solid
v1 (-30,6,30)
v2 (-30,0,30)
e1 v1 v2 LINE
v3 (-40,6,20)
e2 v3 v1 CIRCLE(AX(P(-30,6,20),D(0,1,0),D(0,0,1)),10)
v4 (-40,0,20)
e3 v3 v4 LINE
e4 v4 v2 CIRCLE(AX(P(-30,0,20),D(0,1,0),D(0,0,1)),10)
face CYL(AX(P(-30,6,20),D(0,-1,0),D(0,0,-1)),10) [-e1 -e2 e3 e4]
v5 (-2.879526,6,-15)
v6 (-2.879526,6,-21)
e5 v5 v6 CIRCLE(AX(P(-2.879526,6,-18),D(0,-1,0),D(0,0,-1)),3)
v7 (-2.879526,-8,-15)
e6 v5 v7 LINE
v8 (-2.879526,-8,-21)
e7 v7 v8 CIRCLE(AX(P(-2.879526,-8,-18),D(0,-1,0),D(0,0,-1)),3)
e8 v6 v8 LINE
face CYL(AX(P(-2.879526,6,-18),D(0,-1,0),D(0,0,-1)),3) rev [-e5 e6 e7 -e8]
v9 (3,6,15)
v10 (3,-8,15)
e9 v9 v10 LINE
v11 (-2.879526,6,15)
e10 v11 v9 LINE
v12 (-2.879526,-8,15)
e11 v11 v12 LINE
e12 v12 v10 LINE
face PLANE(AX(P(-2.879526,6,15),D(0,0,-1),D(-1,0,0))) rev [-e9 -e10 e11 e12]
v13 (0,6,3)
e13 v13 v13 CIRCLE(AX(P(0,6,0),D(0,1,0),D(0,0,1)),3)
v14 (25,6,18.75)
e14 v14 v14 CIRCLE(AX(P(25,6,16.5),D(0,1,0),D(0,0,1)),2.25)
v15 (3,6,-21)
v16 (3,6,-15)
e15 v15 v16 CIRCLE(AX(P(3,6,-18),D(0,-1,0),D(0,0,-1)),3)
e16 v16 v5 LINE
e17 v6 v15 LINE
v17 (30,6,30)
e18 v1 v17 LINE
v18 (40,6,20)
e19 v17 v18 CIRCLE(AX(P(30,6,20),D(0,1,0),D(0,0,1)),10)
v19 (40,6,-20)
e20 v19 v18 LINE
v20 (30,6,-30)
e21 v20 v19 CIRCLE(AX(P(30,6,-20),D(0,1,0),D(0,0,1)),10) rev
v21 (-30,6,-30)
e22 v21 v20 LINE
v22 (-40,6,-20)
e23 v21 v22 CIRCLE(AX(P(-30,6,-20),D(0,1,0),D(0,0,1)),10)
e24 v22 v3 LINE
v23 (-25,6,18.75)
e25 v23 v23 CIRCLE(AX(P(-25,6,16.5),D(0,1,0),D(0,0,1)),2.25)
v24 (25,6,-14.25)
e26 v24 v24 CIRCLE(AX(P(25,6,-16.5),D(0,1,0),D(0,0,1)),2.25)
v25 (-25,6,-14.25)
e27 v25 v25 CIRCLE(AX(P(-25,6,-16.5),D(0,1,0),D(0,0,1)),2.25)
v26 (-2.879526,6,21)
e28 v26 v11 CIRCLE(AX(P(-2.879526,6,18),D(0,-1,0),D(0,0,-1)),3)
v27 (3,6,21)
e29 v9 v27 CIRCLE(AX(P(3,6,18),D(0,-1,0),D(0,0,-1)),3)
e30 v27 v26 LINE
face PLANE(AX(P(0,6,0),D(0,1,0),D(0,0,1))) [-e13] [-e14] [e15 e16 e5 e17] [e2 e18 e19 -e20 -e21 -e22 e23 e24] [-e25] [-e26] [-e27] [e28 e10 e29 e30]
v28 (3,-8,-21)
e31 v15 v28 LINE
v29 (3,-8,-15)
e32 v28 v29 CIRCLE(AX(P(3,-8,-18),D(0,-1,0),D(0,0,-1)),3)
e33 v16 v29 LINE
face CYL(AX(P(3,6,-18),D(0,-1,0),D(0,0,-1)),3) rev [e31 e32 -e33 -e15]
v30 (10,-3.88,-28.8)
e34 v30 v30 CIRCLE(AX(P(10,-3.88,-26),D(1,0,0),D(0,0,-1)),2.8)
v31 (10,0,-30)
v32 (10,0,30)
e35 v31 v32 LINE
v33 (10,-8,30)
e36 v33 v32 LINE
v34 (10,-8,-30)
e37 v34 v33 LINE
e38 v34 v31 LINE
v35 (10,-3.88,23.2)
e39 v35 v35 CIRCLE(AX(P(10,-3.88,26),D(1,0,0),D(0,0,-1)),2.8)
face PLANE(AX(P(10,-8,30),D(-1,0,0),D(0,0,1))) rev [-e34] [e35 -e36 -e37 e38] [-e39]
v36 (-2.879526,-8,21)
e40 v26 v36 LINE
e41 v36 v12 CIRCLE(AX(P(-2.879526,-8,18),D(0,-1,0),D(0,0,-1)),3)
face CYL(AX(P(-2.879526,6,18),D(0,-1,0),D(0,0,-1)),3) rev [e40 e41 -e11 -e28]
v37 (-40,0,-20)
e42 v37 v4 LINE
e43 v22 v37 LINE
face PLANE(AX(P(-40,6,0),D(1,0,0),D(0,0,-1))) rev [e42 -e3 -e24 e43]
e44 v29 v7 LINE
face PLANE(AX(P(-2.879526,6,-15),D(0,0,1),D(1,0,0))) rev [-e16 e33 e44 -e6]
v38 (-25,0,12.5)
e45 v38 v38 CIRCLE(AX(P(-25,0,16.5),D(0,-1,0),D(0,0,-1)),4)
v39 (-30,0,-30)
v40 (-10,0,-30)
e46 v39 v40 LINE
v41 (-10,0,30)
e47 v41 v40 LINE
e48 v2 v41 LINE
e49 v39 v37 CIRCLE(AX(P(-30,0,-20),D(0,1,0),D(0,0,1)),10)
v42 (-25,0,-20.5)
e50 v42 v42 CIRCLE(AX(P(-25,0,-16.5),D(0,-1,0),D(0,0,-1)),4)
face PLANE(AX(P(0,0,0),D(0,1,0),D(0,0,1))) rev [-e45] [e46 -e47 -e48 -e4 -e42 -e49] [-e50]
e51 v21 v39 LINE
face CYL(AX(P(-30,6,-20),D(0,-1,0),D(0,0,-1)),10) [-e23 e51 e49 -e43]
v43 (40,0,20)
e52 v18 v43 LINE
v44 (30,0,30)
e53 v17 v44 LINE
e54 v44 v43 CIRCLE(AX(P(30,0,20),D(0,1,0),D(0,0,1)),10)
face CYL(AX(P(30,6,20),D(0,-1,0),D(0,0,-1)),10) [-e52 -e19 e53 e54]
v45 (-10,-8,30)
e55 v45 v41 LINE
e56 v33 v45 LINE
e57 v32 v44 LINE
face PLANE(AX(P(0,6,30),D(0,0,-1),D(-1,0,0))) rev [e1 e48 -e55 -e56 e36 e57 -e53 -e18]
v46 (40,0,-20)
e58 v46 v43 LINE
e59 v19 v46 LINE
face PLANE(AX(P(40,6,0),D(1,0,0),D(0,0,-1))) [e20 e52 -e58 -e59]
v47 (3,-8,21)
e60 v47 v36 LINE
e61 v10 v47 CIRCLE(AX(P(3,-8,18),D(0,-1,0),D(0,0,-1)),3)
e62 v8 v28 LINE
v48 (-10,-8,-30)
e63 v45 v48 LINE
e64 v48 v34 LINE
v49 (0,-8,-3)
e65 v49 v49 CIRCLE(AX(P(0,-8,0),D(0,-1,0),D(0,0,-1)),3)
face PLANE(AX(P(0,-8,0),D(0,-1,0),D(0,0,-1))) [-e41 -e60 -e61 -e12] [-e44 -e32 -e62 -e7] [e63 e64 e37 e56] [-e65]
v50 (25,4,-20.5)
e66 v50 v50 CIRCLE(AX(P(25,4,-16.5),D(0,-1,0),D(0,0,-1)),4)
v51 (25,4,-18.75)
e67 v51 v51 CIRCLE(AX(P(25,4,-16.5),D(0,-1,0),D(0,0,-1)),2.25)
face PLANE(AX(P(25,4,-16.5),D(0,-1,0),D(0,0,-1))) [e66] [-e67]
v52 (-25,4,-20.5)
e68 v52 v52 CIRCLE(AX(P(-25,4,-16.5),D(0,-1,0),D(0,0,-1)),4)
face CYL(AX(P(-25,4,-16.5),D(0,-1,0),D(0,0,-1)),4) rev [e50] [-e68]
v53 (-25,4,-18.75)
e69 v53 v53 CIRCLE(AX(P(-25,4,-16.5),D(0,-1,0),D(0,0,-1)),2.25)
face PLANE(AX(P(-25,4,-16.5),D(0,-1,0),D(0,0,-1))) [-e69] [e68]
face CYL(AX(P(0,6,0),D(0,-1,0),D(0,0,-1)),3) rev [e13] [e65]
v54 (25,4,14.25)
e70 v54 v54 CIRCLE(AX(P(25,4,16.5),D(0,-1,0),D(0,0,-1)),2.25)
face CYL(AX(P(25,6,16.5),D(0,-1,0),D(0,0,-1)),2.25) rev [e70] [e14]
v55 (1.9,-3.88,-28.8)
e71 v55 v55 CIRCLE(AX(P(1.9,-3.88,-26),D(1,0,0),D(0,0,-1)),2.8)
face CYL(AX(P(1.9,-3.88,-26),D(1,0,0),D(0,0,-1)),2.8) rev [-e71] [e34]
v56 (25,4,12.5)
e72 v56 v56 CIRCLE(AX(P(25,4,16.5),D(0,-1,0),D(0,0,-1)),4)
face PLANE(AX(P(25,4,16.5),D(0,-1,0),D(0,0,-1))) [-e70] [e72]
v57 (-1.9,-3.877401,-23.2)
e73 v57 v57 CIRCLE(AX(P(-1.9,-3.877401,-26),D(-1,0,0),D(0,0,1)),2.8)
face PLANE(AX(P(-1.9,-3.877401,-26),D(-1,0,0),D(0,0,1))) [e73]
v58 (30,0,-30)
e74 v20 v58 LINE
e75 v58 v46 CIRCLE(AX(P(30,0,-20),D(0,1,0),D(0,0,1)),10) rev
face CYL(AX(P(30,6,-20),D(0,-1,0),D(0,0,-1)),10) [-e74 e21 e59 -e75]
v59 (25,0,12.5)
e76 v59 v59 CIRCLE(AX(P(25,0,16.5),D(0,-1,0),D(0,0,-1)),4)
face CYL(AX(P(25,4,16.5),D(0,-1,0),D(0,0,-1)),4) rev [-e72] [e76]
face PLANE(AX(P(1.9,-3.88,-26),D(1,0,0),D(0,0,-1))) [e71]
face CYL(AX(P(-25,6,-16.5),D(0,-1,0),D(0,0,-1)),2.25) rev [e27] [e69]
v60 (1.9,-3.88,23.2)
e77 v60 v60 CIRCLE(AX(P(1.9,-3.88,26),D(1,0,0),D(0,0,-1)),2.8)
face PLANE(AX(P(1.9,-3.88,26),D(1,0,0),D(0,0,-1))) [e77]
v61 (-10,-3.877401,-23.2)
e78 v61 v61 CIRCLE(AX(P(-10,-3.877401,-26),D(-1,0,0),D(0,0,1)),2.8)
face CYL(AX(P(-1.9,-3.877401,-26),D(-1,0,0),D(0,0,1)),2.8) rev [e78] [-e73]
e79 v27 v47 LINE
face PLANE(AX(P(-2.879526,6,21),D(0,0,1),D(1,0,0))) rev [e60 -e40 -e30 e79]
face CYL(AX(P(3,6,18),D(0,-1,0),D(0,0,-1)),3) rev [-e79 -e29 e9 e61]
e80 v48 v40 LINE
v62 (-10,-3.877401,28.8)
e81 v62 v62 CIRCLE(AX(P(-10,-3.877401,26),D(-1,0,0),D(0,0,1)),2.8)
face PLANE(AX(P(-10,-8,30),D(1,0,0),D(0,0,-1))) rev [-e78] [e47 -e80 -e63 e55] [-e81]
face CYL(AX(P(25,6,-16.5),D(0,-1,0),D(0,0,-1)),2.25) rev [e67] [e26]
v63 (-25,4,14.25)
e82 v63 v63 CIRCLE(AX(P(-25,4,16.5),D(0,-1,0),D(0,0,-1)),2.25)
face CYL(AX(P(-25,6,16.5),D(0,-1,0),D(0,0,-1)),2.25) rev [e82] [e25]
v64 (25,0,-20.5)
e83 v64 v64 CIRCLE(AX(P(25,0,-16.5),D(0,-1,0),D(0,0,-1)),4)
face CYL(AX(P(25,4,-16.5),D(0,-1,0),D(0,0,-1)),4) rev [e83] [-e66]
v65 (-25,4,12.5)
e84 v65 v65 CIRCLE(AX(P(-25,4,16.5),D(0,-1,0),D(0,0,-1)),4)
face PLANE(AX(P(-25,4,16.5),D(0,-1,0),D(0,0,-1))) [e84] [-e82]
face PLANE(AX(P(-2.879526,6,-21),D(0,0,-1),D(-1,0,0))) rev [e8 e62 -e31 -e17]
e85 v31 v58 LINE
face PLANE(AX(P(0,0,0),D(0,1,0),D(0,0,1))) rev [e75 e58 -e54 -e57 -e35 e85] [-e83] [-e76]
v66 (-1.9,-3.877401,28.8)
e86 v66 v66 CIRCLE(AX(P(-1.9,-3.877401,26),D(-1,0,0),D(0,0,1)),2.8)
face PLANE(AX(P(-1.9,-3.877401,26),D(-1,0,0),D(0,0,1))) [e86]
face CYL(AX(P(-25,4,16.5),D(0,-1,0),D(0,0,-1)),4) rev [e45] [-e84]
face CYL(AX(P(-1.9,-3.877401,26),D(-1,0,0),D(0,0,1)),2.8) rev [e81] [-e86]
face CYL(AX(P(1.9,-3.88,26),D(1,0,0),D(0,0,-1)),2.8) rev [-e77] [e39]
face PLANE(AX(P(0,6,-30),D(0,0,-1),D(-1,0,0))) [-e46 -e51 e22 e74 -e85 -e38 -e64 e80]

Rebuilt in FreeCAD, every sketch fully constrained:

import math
import FreeCAD as App
import Part
import Sketcher

V = App.Vector


def add_polygon(sketch, points):
    """Adds a closed chain of lines whose ends are joined by coincident constraints."""
    first, n = sketch.GeometryCount, len(points)
    for a, b in zip(points, points[1:] + points[:1]):
        sketch.addGeometry(Part.LineSegment(App.Vector(*a, 0), App.Vector(*b, 0)), False)
    for i in range(n):
        sketch.addConstraint(Sketcher.Constraint("Coincident", first + i, 2, first + (i + 1) % n, 1))

doc = App.newDocument("Part")
body = doc.addObject("PartDesign::Body", "Body")

sketch1 = body.newObject("Sketcher::SketchObject", "Sketch")
sketch1.AttachmentSupport = (doc.getObject("XZ_Plane"), [""])
sketch1.MapMode = "FlatFace"
sketch1.addGeometry([
    Part.ArcOfCircle(Part.Circle(V(-30, -20, 0), V(0, 0, 1), 10), math.radians(180), math.radians(270)),
    Part.LineSegment(V(-40, -20, 0), V(-40, 20, 0)),
    Part.ArcOfCircle(Part.Circle(V(-30, 20, 0), V(0, 0, 1), 10), math.radians(90), math.radians(180)),
    Part.LineSegment(V(-30, 30, 0), V(30, 30, 0)),
    Part.ArcOfCircle(Part.Circle(V(30, 20, 0), V(0, 0, 1), 10), math.radians(0), math.radians(90)),
    Part.LineSegment(V(40, 20, 0), V(40, -20, 0)),
    Part.ArcOfCircle(Part.Circle(V(30, -20, 0), V(0, 0, 1), 10), math.radians(-90), math.radians(0)),
    Part.LineSegment(V(30, -30, 0), V(-30, -30, 0)),
    Part.Circle(V(-25, 16.5, 0), V(0, 0, 1), 2.2),
    Part.Circle(V(25, 16.5, 0), V(0, 0, 1), 2.2),
    Part.Circle(V(-25, -16.5, 0), V(0, 0, 1), 2.2),
    Part.Circle(V(0, 0, 0), V(0, 0, 1), 3),
    Part.Circle(V(25, -16.5, 0), V(0, 0, 1), 2.2),
], False)
sketch1.addConstraint([
    Sketcher.Constraint("Tangent", 0, 1, 1, 1),
    Sketcher.Constraint("Tangent", 1, 2, 2, 2),
    Sketcher.Constraint("Tangent", 2, 1, 3, 1),
    Sketcher.Constraint("Tangent", 3, 2, 4, 2),
    Sketcher.Constraint("Tangent", 4, 1, 5, 1),
    Sketcher.Constraint("Tangent", 5, 2, 6, 2),
    Sketcher.Constraint("Tangent", 6, 1, 7, 1),
    Sketcher.Constraint("Tangent", 7, 2, 0, 2),
    Sketcher.Constraint("Vertical", 1),
    Sketcher.Constraint("Horizontal", 3),
    Sketcher.Constraint("Vertical", 5),
    Sketcher.Constraint("Horizontal", 7),
    Sketcher.Constraint("Coincident", 11, 3, -1, 1),
    Sketcher.Constraint("Equal", 0, 2),
    Sketcher.Constraint("Equal", 2, 4),
    Sketcher.Constraint("Equal", 4, 6),
    Sketcher.Constraint("Equal", 8, 9),
    Sketcher.Constraint("Equal", 9, 10),
    Sketcher.Constraint("Equal", 10, 12),
    Sketcher.Constraint("Symmetric", 0, 3, 4, 3, -1, 1),
    Sketcher.Constraint("Symmetric", 9, 3, 10, 3, -1, 1),
    Sketcher.Constraint("Symmetric", 8, 3, 12, 3, -1, 1),
    Sketcher.Constraint("Symmetric", 8, 3, 9, 3, -2),
    Sketcher.Constraint("Diameter", 11, 6.0),
    Sketcher.Constraint("Radius", 0, 10.0),
    Sketcher.Constraint("Diameter", 8, 4.5),
    Sketcher.Constraint("DistanceX", 3, 1, 3, 2, 60.0),
    Sketcher.Constraint("DistanceY", 1, 1, 1, 2, 40.0),
    Sketcher.Constraint("DistanceX", 8, 3, -1, 1, 25.0),
    Sketcher.Constraint("DistanceY", 10, 3, 8, 3, 33.0),
])
pad1 = body.newObject("PartDesign::Pad", "Pad")
pad1.Profile = sketch1
pad1.Length = 6
pad1.Reversed = True

sketch2 = body.newObject("Sketcher::SketchObject", "Sketch001")
sketch2.AttachmentSupport = (doc.getObject("XZ_Plane"), [""])
sketch2.MapMode = "FlatFace"
sketch2.AttachmentOffset = App.Placement(V(0, 0, 8), App.Rotation())
add_polygon(sketch2, [(-10, 30), (-10, -30), (10, -30), (10, 30)])
sketch2.addGeometry(Part.Circle(V(0, 0, 0), V(0, 0, 1), 3), False)
sketch2.addConstraint([
    Sketcher.Constraint("Vertical", 0),
    Sketcher.Constraint("Horizontal", 1),
    Sketcher.Constraint("Vertical", 2),
    Sketcher.Constraint("Horizontal", 3),
    Sketcher.Constraint("Coincident", 4, 3, -1, 1),
    Sketcher.Constraint("Symmetric", 0, 2, 2, 2, -1, 1),
    Sketcher.Constraint("Diameter", 4, 6.0),
    Sketcher.Constraint("DistanceX", 1, 1, 1, 2, 20.0),
    Sketcher.Constraint("DistanceY", 0, 2, 0, 1, 60.0),
])
pad2 = body.newObject("PartDesign::Pad", "Pad001")
pad2.Profile = sketch2
pad2.Length = 8
pad2.Reversed = True

sketch3 = body.newObject("Sketcher::SketchObject", "Sketch002")
sketch3.AttachmentSupport = (doc.getObject("XZ_Plane"), [""])
sketch3.MapMode = "FlatFace"
sketch3.addGeometry([
    Part.Circle(V(-25, 16.5, 0), V(0, 0, 1), 4),
    Part.Circle(V(25, 16.5, 0), V(0, 0, 1), 4),
    Part.Circle(V(25, -16.5, 0), V(0, 0, 1), 4),
    Part.Circle(V(-25, -16.5, 0), V(0, 0, 1), 4),
], False)
sketch3.addConstraint([
    Sketcher.Constraint("Equal", 0, 1),
    Sketcher.Constraint("Equal", 1, 2),
    Sketcher.Constraint("Equal", 2, 3),
    Sketcher.Constraint("Symmetric", 0, 3, 2, 3, -1, 1),
    Sketcher.Constraint("Symmetric", 1, 3, 3, 3, -1, 1),
    Sketcher.Constraint("Symmetric", 0, 3, 1, 3, -2),
    Sketcher.Constraint("Diameter", 0, 8.0),
    Sketcher.Constraint("DistanceX", 0, 3, -1, 1, 25.0),
    Sketcher.Constraint("DistanceY", 2, 3, 1, 3, 33.0),
])
pocket1 = body.newObject("PartDesign::Pocket", "Pocket")
pocket1.Profile = sketch3
pocket1.Length = 4

sketch4 = body.newObject("Sketcher::SketchObject", "Sketch003")
sketch4.AttachmentSupport = (doc.getObject("YZ_Plane"), [""])
sketch4.MapMode = "FlatFace"
sketch4.AttachmentOffset = App.Placement(V(0, 0, -10), App.Rotation())
sketch4.addGeometry([
    Part.Circle(V(-3.9, 26, 0), V(0, 0, 1), 2.8),
    Part.Circle(V(-3.9, -26, 0), V(0, 0, 1), 2.8),
], False)
sketch4.addConstraint([
    Sketcher.Constraint("Equal", 0, 1),
    Sketcher.Constraint("Symmetric", 0, 3, 1, 3, -1),
    Sketcher.Constraint("Diameter", 0, 5.6),
    Sketcher.Constraint("DistanceY", -1, 1, 0, 3, 26.0),
    Sketcher.Constraint("DistanceX", 0, 3, -1, 1, 3.877401),
])
pocket2 = body.newObject("PartDesign::Pocket", "Pocket001")
pocket2.Profile = sketch4
pocket2.Length = 8.1
pocket2.Reversed = True

sketch5 = body.newObject("Sketcher::SketchObject", "Sketch004")
sketch5.AttachmentSupport = (doc.getObject("XZ_Plane"), [""])
sketch5.MapMode = "FlatFace"
sketch5.AttachmentOffset = App.Placement(V(0, 0, 8), App.Rotation())
sketch5.addGeometry([
    Part.LineSegment(V(3, 21, 0), V(-2.9, 21, 0)),
    Part.ArcOfCircle(Part.Circle(V(-2.9, 18, 0), V(0, 0, 1), 3), math.radians(90), math.radians(270)),
    Part.LineSegment(V(-2.9, 15, 0), V(3, 15, 0)),
    Part.ArcOfCircle(Part.Circle(V(3, 18, 0), V(0, 0, 1), 3), math.radians(-90), math.radians(90)),
    Part.LineSegment(V(3, -15, 0), V(-2.9, -15, 0)),
    Part.ArcOfCircle(Part.Circle(V(-2.9, -18, 0), V(0, 0, 1), 3), math.radians(90), math.radians(270)),
    Part.LineSegment(V(-2.9, -21, 0), V(3, -21, 0)),
    Part.ArcOfCircle(Part.Circle(V(3, -18, 0), V(0, 0, 1), 3), math.radians(-90), math.radians(90)),
], False)
sketch5.addConstraint([
    Sketcher.Constraint("Tangent", 0, 2, 1, 1),
    Sketcher.Constraint("Tangent", 1, 2, 2, 1),
    Sketcher.Constraint("Tangent", 2, 2, 3, 1),
    Sketcher.Constraint("Tangent", 3, 2, 0, 1),
    Sketcher.Constraint("Tangent", 4, 2, 5, 1),
    Sketcher.Constraint("Tangent", 5, 2, 6, 1),
    Sketcher.Constraint("Tangent", 6, 2, 7, 1),
    Sketcher.Constraint("Tangent", 7, 2, 4, 1),
    Sketcher.Constraint("Horizontal", 0),
    Sketcher.Constraint("Horizontal", 2),
    Sketcher.Constraint("Horizontal", 4),
    Sketcher.Constraint("Horizontal", 6),
    Sketcher.Constraint("Equal", 3, 5),
    Sketcher.Constraint("Symmetric", 1, 3, 5, 3, -1),
    Sketcher.Constraint("Vertical", 3, 3, 7, 3),
    Sketcher.Constraint("Radius", 1, 3.0),
    Sketcher.Constraint("DistanceY", -1, 1, 1, 3, 18.0),
    Sketcher.Constraint("DistanceX", -1, 1, 3, 3, 3.0),
    Sketcher.Constraint("DistanceX", 0, 2, 0, 1, 5.879526),
])
pocket3 = body.newObject("PartDesign::Pocket", "Pocket002")
pocket3.Profile = sketch5
pocket3.Type = "ThroughAll"

sketch6 = body.newObject("Sketcher::SketchObject", "Sketch005")
sketch6.AttachmentSupport = (doc.getObject("YZ_Plane"), [""])
sketch6.MapMode = "FlatFace"
sketch6.AttachmentOffset = App.Placement(V(0, 0, 10), App.Rotation())
sketch6.addGeometry([
    Part.Circle(V(-3.9, 26, 0), V(0, 0, 1), 2.8),
    Part.Circle(V(-3.9, -26, 0), V(0, 0, 1), 2.8),
], False)
sketch6.addConstraint([
    Sketcher.Constraint("Equal", 0, 1),
    Sketcher.Constraint("Symmetric", 0, 3, 1, 3, -1),
    Sketcher.Constraint("Diameter", 0, 5.6),
    Sketcher.Constraint("DistanceY", -1, 1, 0, 3, 26.0),
    Sketcher.Constraint("DistanceX", 0, 3, -1, 1, 3.88),
])
pocket4 = body.newObject("PartDesign::Pocket", "Pocket003")
pocket4.Profile = sketch6
pocket4.Length = 8.1

doc.recompute()
